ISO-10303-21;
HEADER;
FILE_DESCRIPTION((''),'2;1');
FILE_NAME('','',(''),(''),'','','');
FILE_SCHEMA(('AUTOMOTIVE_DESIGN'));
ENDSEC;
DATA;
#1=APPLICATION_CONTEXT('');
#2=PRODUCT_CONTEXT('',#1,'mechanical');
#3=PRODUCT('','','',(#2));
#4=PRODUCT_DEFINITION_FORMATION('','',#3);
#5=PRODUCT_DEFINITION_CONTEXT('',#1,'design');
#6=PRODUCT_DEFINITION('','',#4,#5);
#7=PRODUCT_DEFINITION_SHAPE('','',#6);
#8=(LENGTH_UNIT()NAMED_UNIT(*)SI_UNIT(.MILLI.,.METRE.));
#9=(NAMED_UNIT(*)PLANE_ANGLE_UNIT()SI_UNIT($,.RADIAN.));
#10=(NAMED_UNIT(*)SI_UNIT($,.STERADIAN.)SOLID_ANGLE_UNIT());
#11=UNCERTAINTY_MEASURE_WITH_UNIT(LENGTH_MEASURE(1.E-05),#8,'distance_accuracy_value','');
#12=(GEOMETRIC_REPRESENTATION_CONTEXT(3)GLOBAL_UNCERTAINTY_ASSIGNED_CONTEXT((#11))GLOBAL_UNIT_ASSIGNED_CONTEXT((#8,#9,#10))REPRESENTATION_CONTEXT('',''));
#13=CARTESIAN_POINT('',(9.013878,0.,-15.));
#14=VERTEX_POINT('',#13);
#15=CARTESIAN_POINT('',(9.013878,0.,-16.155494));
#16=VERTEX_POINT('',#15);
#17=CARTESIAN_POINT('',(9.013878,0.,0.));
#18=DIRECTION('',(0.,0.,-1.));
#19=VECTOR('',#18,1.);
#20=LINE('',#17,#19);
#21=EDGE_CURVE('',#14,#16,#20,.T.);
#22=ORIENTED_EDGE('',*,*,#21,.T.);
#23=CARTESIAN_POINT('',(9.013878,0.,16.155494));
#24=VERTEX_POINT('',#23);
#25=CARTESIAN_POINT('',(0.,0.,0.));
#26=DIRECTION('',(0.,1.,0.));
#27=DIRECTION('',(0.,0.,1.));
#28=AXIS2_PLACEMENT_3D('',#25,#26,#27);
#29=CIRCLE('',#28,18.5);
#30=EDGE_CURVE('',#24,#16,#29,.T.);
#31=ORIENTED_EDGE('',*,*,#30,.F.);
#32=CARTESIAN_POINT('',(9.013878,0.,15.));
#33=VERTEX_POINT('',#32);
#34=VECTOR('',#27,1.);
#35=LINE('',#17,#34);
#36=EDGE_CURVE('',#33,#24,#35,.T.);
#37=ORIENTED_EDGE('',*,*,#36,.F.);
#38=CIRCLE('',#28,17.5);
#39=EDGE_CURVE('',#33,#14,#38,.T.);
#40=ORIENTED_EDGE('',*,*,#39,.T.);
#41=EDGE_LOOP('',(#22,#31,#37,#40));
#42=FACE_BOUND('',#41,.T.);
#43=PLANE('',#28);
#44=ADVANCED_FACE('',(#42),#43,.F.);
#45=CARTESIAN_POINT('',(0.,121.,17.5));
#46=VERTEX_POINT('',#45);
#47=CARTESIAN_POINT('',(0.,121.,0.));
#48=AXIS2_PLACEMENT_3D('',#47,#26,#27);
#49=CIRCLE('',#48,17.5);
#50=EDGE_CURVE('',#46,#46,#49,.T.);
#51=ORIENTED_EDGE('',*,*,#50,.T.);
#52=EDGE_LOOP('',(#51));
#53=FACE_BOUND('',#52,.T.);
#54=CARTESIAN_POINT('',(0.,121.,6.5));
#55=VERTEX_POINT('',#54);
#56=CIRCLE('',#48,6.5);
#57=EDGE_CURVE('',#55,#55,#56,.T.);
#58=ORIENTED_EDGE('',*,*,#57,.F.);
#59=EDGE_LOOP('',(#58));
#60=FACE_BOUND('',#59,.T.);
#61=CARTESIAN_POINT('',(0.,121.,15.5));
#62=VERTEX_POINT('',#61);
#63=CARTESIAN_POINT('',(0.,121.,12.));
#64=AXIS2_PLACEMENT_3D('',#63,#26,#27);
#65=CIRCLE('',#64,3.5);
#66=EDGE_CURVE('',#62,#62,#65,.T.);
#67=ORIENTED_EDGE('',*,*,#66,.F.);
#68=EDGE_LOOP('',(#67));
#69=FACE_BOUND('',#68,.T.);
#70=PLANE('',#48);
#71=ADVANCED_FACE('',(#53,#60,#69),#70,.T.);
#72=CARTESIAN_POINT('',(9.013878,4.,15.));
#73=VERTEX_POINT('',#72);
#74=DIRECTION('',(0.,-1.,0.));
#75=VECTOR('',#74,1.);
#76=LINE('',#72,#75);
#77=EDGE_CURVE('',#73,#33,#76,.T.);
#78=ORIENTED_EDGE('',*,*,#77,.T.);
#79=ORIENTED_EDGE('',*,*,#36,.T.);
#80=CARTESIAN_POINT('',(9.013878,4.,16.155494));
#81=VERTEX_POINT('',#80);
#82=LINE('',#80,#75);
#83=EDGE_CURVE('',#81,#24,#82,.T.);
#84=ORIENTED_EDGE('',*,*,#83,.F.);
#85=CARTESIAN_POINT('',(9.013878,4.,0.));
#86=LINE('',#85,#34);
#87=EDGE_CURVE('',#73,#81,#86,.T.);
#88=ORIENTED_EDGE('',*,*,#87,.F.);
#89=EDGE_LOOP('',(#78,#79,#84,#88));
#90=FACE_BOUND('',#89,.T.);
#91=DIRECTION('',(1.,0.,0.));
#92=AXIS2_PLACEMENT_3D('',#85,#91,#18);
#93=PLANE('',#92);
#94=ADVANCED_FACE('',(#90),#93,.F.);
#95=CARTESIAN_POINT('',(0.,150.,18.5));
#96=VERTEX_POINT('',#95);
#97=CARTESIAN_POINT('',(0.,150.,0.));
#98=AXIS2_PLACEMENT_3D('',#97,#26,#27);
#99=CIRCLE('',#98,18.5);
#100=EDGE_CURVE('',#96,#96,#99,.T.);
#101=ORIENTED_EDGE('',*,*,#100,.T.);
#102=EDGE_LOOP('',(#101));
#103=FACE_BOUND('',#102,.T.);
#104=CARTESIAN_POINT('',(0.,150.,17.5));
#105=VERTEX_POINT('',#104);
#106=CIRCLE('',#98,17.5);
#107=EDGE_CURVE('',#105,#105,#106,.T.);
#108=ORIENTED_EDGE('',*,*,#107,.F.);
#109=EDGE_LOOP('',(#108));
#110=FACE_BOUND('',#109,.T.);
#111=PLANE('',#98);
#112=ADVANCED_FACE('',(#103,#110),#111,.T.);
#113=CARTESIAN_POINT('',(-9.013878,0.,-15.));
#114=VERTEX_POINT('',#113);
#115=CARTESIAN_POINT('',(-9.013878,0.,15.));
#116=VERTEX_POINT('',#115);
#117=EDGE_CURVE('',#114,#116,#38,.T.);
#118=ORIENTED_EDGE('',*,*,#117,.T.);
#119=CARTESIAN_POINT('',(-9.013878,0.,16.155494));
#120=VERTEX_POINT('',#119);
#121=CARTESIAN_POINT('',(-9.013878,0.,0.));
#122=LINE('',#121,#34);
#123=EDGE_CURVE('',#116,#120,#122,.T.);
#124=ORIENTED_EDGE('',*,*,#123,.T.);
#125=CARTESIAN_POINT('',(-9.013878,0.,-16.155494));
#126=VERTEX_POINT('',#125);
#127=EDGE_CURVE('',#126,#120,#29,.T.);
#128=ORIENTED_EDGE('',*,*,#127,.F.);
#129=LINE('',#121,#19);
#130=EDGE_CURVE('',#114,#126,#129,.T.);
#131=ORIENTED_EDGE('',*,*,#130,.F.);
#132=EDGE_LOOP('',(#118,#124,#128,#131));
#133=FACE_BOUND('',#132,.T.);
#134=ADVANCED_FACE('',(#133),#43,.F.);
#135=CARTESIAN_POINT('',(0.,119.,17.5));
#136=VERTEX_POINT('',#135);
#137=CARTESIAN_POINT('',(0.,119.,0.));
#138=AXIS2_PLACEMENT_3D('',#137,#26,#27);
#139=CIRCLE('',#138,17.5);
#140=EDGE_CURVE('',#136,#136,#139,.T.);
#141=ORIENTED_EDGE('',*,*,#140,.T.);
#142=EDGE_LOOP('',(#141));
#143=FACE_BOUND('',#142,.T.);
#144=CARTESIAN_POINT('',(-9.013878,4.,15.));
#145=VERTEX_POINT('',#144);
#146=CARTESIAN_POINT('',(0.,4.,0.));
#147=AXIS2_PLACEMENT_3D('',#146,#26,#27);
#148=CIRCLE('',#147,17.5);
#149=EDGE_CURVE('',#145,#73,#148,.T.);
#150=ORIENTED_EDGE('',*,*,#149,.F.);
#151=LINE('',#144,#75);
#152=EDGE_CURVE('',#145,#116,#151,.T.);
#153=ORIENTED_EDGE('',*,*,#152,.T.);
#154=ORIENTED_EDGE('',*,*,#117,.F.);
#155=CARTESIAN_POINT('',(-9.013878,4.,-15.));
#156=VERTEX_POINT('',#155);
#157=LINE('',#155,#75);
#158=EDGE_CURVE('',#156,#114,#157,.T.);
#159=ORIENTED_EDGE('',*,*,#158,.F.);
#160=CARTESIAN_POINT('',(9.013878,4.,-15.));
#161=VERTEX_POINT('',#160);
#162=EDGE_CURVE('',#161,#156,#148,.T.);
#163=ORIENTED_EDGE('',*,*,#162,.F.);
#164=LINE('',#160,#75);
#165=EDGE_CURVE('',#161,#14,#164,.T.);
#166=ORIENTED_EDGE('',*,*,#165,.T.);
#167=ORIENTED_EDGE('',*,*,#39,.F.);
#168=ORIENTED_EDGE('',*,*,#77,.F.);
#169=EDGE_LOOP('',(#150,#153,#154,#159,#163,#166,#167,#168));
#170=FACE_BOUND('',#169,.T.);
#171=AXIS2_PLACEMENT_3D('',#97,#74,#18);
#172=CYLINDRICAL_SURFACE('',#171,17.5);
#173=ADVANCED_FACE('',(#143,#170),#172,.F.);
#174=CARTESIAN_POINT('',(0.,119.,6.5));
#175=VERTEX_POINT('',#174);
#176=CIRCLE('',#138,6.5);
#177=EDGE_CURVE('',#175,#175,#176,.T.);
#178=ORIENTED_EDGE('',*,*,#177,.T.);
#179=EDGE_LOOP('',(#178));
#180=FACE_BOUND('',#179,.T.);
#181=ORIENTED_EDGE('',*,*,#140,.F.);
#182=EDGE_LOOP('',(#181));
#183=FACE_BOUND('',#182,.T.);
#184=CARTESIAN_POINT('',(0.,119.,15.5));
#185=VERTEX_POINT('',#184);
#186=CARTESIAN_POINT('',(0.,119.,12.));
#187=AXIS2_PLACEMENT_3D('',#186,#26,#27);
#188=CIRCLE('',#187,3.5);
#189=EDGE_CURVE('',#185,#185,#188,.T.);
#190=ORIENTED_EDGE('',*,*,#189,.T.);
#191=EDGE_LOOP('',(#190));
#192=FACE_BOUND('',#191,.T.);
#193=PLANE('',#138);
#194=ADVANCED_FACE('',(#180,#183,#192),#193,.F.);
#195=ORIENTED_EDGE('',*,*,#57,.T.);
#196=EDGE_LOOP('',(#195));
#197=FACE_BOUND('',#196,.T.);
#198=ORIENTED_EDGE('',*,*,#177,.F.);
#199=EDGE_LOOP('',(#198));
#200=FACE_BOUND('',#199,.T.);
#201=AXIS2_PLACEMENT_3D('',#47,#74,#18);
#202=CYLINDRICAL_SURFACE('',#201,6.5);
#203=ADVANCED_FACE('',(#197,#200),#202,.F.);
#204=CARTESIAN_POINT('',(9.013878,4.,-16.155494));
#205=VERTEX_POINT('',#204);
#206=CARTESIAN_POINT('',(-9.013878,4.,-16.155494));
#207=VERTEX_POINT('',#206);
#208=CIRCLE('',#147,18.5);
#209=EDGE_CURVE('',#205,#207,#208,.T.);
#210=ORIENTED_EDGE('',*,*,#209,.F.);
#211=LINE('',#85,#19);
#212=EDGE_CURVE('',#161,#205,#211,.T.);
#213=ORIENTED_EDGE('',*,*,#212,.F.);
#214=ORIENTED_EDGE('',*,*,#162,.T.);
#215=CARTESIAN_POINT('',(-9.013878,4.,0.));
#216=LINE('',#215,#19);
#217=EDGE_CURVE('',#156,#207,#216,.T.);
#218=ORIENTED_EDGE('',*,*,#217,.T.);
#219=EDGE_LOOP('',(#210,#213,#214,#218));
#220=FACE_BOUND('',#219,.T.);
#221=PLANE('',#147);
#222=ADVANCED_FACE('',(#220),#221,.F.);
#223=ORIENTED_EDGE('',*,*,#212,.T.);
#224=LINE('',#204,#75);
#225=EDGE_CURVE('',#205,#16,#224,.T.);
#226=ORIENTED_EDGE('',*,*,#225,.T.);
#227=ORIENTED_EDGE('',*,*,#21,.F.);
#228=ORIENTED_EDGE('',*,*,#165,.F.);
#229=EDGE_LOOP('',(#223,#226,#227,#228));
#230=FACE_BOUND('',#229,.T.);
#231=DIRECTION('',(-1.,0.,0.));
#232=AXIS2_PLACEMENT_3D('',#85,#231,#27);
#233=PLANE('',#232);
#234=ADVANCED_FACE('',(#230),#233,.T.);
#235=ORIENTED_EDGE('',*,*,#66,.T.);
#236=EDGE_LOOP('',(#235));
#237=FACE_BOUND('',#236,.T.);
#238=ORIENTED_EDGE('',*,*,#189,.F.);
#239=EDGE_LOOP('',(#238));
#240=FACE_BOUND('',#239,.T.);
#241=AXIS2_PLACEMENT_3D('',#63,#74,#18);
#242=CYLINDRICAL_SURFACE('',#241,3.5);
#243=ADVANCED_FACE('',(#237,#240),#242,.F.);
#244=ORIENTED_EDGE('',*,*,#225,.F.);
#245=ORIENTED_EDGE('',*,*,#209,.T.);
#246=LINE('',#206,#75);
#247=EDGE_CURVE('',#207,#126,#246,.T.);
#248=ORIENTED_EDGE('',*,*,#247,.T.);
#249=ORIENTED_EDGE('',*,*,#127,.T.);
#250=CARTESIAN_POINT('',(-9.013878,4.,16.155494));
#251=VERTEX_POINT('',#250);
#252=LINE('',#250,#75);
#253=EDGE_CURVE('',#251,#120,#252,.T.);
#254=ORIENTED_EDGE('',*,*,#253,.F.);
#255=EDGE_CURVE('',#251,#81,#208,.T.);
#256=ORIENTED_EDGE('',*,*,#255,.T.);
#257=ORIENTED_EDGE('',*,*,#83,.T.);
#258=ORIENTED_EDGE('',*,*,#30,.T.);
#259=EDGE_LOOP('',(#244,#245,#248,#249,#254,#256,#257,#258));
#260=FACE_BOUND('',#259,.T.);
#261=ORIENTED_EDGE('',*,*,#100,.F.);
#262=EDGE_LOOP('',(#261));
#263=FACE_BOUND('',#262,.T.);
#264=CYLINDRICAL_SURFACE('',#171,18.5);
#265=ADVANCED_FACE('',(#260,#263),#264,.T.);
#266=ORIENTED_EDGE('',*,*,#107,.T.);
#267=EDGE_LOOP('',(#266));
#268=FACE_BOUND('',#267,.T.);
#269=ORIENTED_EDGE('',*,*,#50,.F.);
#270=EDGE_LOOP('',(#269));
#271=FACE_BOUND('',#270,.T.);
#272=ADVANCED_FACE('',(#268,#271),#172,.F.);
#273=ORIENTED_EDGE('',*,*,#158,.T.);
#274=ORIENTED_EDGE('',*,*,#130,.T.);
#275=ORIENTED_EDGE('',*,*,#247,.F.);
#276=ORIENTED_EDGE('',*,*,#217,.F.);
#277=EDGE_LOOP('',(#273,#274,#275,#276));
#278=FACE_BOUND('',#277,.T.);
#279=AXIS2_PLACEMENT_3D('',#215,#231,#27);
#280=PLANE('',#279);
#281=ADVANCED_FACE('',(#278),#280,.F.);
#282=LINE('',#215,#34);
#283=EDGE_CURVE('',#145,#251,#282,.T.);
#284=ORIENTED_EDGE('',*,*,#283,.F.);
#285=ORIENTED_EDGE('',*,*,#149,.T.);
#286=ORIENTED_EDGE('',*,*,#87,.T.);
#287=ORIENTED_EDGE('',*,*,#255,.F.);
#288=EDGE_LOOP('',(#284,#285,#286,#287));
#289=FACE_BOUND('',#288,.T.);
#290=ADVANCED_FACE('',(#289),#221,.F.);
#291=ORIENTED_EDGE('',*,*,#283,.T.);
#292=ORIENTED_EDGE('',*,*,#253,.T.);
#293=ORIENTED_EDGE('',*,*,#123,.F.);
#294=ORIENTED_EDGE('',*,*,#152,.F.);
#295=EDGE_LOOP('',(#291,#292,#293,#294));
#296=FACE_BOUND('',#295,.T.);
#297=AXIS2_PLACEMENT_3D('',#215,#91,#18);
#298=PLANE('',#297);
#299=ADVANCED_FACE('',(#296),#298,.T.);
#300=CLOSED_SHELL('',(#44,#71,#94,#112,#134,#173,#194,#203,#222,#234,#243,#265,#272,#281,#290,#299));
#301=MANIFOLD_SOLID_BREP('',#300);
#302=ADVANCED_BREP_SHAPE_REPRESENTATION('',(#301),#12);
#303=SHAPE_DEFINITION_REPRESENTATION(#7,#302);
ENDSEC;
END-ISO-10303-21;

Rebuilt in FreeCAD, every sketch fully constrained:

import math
import FreeCAD as App
import Part
import Sketcher
Q = App.Units.Quantity

doc = App.newDocument("Part")
body = doc.addObject("PartDesign::Body", "Body")

# Sketch on XZ plane
sketch1 = body.newObject("Sketcher::SketchObject", "Sketch")
sketch1.AttachmentSupport = (doc.getObject("XZ_Plane"), [""])
sketch1.MapMode = "FlatFace"
sketch1.addGeometry([
    Part.ArcOfCircle(Part.Circle(App.Vector(0, 0, 0), App.Vector(0, 0, 1), 18), math.radians(-119), math.radians(-61)),  # 0
    Part.ArcOfCircle(Part.Circle(App.Vector(0, 0, 0), App.Vector(0, 0, 1), 18), math.radians(119), math.radians(241)),  # 1
    Part.ArcOfCircle(Part.Circle(App.Vector(0, 0, 0), App.Vector(0, 0, 1), 18), math.radians(61), math.radians(119)),  # 2
    Part.ArcOfCircle(Part.Circle(App.Vector(0, 0, 0), App.Vector(0, 0, 1), 19), math.radians(0), math.radians(61)),  # 3
    Part.ArcOfCircle(Part.Circle(App.Vector(0, 0, 0), App.Vector(0, 0, 1), 19), math.radians(-61), math.radians(0)),  # 4
    Part.ArcOfCircle(Part.Circle(App.Vector(0, 0, 0), App.Vector(0, 0, 1), 18), math.radians(121), math.radians(239)),  # 5
    Part.ArcOfCircle(Part.Circle(App.Vector(0, 0, 0), App.Vector(0, 0, 1), 18), math.radians(-121), math.radians(-59)),  # 6
    Part.ArcOfCircle(Part.Circle(App.Vector(0, 0, 0), App.Vector(0, 0, 1), 17), math.radians(-59), math.radians(0)),  # 7
    Part.ArcOfCircle(Part.Circle(App.Vector(0, 0, 0), App.Vector(0, 0, 1), 17), math.radians(0), math.radians(59)),  # 8
    Part.ArcOfCircle(Part.Circle(App.Vector(0, 0, 0), App.Vector(0, 0, 1), 18), math.radians(59), math.radians(121)),  # 9
], False)
sketch1.addConstraint([
    Sketcher.Constraint("Tangent", 0, 1, 1, 2),
    Sketcher.Constraint("Tangent", 1, 1, 2, 2),
    Sketcher.Constraint("Tangent", 2, 1, 3, 2),
    Sketcher.Constraint("Tangent", 3, 1, 4, 2),
    Sketcher.Constraint("Tangent", 4, 1, 0, 2),
    Sketcher.Constraint("Tangent", 5, 2, 6, 1),
    Sketcher.Constraint("Tangent", 6, 2, 7, 1),
    Sketcher.Constraint("Tangent", 7, 2, 8, 1),
    Sketcher.Constraint("Tangent", 8, 2, 9, 1),
    Sketcher.Constraint("Tangent", 9, 2, 5, 1),
    Sketcher.Constraint("Coincident", 0, 3, -1, 1),
    Sketcher.Constraint("Coincident", 2, 3, -1, 1),
    Sketcher.Constraint("Coincident", 5, 3, -1, 1),
    Sketcher.Constraint("Coincident", 7, 3, -1, 1),
    Sketcher.Constraint("PointOnObject", 3, 1, -1),
    Sketcher.Constraint("PointOnObject", 7, 2, -1),
    Sketcher.Constraint("Horizontal", 1, 1, 2, 1),
    Sketcher.Constraint("Horizontal", 0, 1, 4, 1),
    Sketcher.Constraint("Horizontal", 5, 2, 6, 2),
    Sketcher.Constraint("Horizontal", 8, 2, 9, 2),
    Sketcher.Constraint("Vertical", 0, 1, 1, 1),
    Sketcher.Constraint("Vertical", 1, 1, 5, 2),
    Sketcher.Constraint("Vertical", 6, 2, 8, 2),
    Sketcher.Constraint("Radius", 0, Q("18.5 mm")),
    Sketcher.Constraint("Radius", 5, Q("17.5 mm")),
    Sketcher.Constraint("DistanceY", 5, 2, -1, 1, Q("15 mm")),
])
pad1 = body.newObject("PartDesign::Pad", "Pad")
pad1.Profile = sketch1
pad1.Length = 150
pad1.Reversed = True

# Sketch on XZ plane
sketch2 = body.newObject("Sketcher::SketchObject", "Sketch001")
sketch2.AttachmentSupport = (doc.getObject("XZ_Plane"), [""])
sketch2.MapMode = "FlatFace"
sketch2.AttachmentOffset = App.Placement(App.Vector(0, 0, -120), App.Rotation())
sketch2.addGeometry([
    Part.Circle(App.Vector(0, 0, 0), App.Vector(0, 0, 1), 17.5),
    Part.Circle(App.Vector(0, 12, 0), App.Vector(0, 0, 1), 3.5),
    Part.Circle(App.Vector(0, 0, 0), App.Vector(0, 0, 1), 6.5),
], False)
sketch2.addConstraint([
    Sketcher.Constraint("Coincident", 0, 3, -1, 1),
    Sketcher.Constraint("Coincident", 2, 3, -1, 1),
    Sketcher.Constraint("PointOnObject", 1, 3, -2),
    Sketcher.Constraint("Diameter", 0, Q("35 mm")),
    Sketcher.Constraint("Diameter", 1, Q("7 mm")),
    Sketcher.Constraint("Diameter", 2, Q("13 mm")),
    Sketcher.Constraint("DistanceY", -1, 1, 1, 3, Q("12 mm")),
])
pad2 = body.newObject("PartDesign::Pad", "Pad001")
pad2.Profile = sketch2
pad2.Length = 2
pad2.Midplane = True

# Sketch on XZ plane
sketch3 = body.newObject("Sketcher::SketchObject", "Sketch002")
sketch3.AttachmentSupport = (doc.getObject("XZ_Plane"), [""])
sketch3.MapMode = "FlatFace"
sketch3.addGeometry([
    Part.LineSegment(App.Vector(-9, -16.2, 0), App.Vector(-9, -15, 0)),  # 0
    Part.ArcOfCircle(Part.Circle(App.Vector(0, 0, 0), App.Vector(0, 0, 1), 17.5), math.radians(-121), math.radians(-59)),  # 1
    Part.LineSegment(App.Vector(9, -15, 0), App.Vector(9, -16.2, 0)),  # 2
    Part.ArcOfCircle(Part.Circle(App.Vector(0, 0, 0), App.Vector(0, 0, 1), 18.5), math.radians(-119), math.radians(-61)),  # 3
    Part.ArcOfCircle(Part.Circle(App.Vector(0, 0, 0), App.Vector(0, 0, 1), 17.5), math.radians(59), math.radians(121)),  # 4
    Part.LineSegment(App.Vector(-9, 15, 0), App.Vector(-9, 16.2, 0)),  # 5
    Part.ArcOfCircle(Part.Circle(App.Vector(0, 0, 0), App.Vector(0, 0, 1), 18.5), math.radians(61), math.radians(119)),  # 6
    Part.LineSegment(App.Vector(9, 16.2, 0), App.Vector(9, 15, 0)),  # 7
], False)
sketch3.addConstraint([
    Sketcher.Constraint("Coincident", 0, 2, 1, 1),
    Sketcher.Constraint("Coincident", 1, 2, 2, 1),
    Sketcher.Constraint("Coincident", 2, 2, 3, 2),
    Sketcher.Constraint("Coincident", 3, 1, 0, 1),
    Sketcher.Constraint("Coincident", 4, 2, 5, 1),
    Sketcher.Constraint("Coincident", 5, 2, 6, 2),
    Sketcher.Constraint("Coincident", 6, 1, 7, 1),
    Sketcher.Constraint("Coincident", 7, 2, 4, 1),
    Sketcher.Constraint("Vertical", 0),
    Sketcher.Constraint("Vertical", 2),
    Sketcher.Constraint("Vertical", 5),
    Sketcher.Constraint("Vertical", 7),
    Sketcher.Constraint("Coincident", 1, 3, -1, 1),
    Sketcher.Constraint("Coincident", 3, 3, -1, 1),
    Sketcher.Constraint("Coincident", 4, 3, -1, 1),
    Sketcher.Constraint("Coincident", 6, 3, -1, 1),
    Sketcher.Constraint("Equal", 1, 4),
    Sketcher.Constraint("Equal", 3, 6),
    Sketcher.Constraint("Horizontal", 0, 2, 1, 2),
    Sketcher.Constraint("Horizontal", 5, 2, 6, 1),
    Sketcher.Constraint("Vertical", 3, 1, 4, 2),
    Sketcher.Constraint("Radius", 1, Q("17.5 mm")),
    Sketcher.Constraint("Radius", 3, Q("18.5 mm")),
    Sketcher.Constraint("DistanceY", 0, 2, -1, 1, Q("15 mm")),
])
pocket1 = body.newObject("PartDesign::Pocket", "Pocket")
pocket1.Profile = sketch3
pocket1.Length = 4

doc.recompute()
